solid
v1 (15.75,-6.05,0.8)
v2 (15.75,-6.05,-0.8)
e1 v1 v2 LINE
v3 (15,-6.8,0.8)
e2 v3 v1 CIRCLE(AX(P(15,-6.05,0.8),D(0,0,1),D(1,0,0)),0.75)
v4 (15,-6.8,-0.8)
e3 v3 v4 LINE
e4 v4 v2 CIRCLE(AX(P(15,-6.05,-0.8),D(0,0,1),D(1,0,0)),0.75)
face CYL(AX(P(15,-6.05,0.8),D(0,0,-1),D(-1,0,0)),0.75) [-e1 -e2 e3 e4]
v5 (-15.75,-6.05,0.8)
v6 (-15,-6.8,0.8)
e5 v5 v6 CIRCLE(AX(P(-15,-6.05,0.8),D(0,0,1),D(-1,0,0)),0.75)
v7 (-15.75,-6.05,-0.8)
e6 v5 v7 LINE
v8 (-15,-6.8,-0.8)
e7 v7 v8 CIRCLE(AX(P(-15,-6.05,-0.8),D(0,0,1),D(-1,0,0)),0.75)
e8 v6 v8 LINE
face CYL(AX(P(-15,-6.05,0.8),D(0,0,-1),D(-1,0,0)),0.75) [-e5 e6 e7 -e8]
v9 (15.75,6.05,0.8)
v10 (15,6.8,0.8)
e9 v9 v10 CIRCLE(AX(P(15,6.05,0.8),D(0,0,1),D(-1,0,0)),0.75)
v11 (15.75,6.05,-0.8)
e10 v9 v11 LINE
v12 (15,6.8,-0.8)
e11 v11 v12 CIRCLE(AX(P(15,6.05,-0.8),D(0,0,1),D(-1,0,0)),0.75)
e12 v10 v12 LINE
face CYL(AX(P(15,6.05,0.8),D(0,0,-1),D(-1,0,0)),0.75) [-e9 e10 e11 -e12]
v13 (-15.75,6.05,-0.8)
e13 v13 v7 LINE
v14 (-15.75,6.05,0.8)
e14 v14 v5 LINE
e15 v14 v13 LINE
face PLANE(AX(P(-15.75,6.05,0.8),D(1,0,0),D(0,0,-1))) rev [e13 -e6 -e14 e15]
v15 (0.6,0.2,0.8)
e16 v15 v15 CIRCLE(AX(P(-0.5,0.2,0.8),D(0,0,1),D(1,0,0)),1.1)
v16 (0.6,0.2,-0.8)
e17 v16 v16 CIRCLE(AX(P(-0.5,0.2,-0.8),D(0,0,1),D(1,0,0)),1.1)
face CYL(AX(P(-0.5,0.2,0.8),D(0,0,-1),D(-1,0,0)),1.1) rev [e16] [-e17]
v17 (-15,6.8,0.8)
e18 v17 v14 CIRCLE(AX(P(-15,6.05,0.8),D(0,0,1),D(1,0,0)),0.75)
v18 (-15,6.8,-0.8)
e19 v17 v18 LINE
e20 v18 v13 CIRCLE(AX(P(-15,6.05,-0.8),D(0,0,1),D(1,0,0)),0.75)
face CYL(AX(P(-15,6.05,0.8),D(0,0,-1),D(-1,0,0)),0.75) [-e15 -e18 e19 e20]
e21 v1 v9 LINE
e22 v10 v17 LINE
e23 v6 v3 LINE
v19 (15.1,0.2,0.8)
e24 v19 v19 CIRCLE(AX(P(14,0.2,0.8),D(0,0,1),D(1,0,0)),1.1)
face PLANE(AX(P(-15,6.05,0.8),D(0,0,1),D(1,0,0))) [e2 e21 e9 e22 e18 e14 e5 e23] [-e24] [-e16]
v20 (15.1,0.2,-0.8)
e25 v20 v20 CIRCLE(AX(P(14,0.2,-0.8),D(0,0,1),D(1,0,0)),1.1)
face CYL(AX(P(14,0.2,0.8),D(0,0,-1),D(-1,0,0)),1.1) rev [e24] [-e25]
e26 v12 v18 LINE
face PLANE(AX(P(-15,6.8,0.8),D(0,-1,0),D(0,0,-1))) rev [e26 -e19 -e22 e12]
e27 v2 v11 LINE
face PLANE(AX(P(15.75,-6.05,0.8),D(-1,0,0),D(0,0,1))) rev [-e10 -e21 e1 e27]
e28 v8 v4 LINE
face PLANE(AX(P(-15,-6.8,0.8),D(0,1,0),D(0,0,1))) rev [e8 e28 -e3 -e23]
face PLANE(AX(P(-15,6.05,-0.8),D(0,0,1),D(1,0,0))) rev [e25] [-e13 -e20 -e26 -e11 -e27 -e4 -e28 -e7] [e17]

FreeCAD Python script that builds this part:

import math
import FreeCAD as App
import Part
import Sketcher
from FreeCAD import Vector

doc = App.newDocument("Part")
body = doc.addObject("PartDesign::Body", "Body")

# Sketch on XY plane
sketch1 = body.newObject("Sketcher::SketchObject", "Sketch")
sketch1.AttachmentSupport = (doc.getObject("XY_Plane"), [""])
sketch1.MapMode = "FlatFace"
sketch1.addGeometry([
    Part.LineSegment(Vector(-15, -6.8, 0), Vector(15, -6.8, 0)),  # 0
    Part.ArcOfCircle(Part.Circle(Vector(15, -6, 0), Vector(0, 0, 1), 0.8), math.radians(-90), math.radians(0)),  # 1
    Part.LineSegment(Vector(15.8, -6, 0), Vector(15.8, 6, 0)),  # 2
    Part.ArcOfCircle(Part.Circle(Vector(15, 6, 0), Vector(0, 0, 1), 0.8), math.radians(0), math.radians(90)),  # 3
    Part.LineSegment(Vector(15, 6.8, 0), Vector(-15, 6.8, 0)),  # 4
    Part.ArcOfCircle(Part.Circle(Vector(-15, 6, 0), Vector(0, 0, 1), 0.8), math.radians(90), math.radians(180)),  # 5
    Part.LineSegment(Vector(-15.8, 6, 0), Vector(-15.8, -6, 0)),  # 6
    Part.ArcOfCircle(Part.Circle(Vector(-15, -6, 0), Vector(0, 0, 1), 0.8), math.radians(180), math.radians(270)),  # 7
    Part.Circle(Vector(-0.5, 0.2, 0), Vector(0, 0, 1), 1.1),  # 8
    Part.Circle(Vector(14, 0.2, 0), Vector(0, 0, 1), 1.1),  # 9
], False)
sketch1.addConstraint([
    Sketcher.Constraint("Tangent", 0, 2, 1, 1),
    Sketcher.Constraint("Tangent", 1, 2, 2, 1),
    Sketcher.Constraint("Tangent", 2, 2, 3, 1),
    Sketcher.Constraint("Tangent", 3, 2, 4, 1),
    Sketcher.Constraint("Tangent", 4, 2, 5, 1),
    Sketcher.Constraint("Tangent", 5, 2, 6, 1),
    Sketcher.Constraint("Tangent", 6, 2, 7, 1),
    Sketcher.Constraint("Tangent", 7, 2, 0, 1),
    Sketcher.Constraint("Horizontal", 0),
    Sketcher.Constraint("Vertical", 2),
    Sketcher.Constraint("Horizontal", 4),
    Sketcher.Constraint("Vertical", 6),
    Sketcher.Constraint("Equal", 1, 3),
    Sketcher.Constraint("Equal", 3, 5),
    Sketcher.Constraint("Equal", 5, 7),
    Sketcher.Constraint("Equal", 8, 9),
    Sketcher.Constraint("Symmetric", 1, 3, 5, 3, -1, 1),
    Sketcher.Constraint("Horizontal", 8, 3, 9, 3),
    Sketcher.Constraint("Diameter", 8, 2.2),
    Sketcher.Constraint("DistanceX", 0, 1, 0, 2, 30.0),
    Sketcher.Constraint("Radius", 1, 0.75),
    Sketcher.Constraint("DistanceY", 2, 1, 2, 2, 12.1),
    Sketcher.Constraint("DistanceX", -1, 1, 9, 3, 14.0),
    Sketcher.Constraint("DistanceY", 0, 2, 9, 3, 7.0),
    Sketcher.Constraint("DistanceX", 8, 3, -1, 1, 0.5),
])
pad1 = body.newObject("PartDesign::Pad", "Pad")
pad1.Profile = sketch1
pad1.Length = 1.6
pad1.Midplane = True

doc.recompute()
